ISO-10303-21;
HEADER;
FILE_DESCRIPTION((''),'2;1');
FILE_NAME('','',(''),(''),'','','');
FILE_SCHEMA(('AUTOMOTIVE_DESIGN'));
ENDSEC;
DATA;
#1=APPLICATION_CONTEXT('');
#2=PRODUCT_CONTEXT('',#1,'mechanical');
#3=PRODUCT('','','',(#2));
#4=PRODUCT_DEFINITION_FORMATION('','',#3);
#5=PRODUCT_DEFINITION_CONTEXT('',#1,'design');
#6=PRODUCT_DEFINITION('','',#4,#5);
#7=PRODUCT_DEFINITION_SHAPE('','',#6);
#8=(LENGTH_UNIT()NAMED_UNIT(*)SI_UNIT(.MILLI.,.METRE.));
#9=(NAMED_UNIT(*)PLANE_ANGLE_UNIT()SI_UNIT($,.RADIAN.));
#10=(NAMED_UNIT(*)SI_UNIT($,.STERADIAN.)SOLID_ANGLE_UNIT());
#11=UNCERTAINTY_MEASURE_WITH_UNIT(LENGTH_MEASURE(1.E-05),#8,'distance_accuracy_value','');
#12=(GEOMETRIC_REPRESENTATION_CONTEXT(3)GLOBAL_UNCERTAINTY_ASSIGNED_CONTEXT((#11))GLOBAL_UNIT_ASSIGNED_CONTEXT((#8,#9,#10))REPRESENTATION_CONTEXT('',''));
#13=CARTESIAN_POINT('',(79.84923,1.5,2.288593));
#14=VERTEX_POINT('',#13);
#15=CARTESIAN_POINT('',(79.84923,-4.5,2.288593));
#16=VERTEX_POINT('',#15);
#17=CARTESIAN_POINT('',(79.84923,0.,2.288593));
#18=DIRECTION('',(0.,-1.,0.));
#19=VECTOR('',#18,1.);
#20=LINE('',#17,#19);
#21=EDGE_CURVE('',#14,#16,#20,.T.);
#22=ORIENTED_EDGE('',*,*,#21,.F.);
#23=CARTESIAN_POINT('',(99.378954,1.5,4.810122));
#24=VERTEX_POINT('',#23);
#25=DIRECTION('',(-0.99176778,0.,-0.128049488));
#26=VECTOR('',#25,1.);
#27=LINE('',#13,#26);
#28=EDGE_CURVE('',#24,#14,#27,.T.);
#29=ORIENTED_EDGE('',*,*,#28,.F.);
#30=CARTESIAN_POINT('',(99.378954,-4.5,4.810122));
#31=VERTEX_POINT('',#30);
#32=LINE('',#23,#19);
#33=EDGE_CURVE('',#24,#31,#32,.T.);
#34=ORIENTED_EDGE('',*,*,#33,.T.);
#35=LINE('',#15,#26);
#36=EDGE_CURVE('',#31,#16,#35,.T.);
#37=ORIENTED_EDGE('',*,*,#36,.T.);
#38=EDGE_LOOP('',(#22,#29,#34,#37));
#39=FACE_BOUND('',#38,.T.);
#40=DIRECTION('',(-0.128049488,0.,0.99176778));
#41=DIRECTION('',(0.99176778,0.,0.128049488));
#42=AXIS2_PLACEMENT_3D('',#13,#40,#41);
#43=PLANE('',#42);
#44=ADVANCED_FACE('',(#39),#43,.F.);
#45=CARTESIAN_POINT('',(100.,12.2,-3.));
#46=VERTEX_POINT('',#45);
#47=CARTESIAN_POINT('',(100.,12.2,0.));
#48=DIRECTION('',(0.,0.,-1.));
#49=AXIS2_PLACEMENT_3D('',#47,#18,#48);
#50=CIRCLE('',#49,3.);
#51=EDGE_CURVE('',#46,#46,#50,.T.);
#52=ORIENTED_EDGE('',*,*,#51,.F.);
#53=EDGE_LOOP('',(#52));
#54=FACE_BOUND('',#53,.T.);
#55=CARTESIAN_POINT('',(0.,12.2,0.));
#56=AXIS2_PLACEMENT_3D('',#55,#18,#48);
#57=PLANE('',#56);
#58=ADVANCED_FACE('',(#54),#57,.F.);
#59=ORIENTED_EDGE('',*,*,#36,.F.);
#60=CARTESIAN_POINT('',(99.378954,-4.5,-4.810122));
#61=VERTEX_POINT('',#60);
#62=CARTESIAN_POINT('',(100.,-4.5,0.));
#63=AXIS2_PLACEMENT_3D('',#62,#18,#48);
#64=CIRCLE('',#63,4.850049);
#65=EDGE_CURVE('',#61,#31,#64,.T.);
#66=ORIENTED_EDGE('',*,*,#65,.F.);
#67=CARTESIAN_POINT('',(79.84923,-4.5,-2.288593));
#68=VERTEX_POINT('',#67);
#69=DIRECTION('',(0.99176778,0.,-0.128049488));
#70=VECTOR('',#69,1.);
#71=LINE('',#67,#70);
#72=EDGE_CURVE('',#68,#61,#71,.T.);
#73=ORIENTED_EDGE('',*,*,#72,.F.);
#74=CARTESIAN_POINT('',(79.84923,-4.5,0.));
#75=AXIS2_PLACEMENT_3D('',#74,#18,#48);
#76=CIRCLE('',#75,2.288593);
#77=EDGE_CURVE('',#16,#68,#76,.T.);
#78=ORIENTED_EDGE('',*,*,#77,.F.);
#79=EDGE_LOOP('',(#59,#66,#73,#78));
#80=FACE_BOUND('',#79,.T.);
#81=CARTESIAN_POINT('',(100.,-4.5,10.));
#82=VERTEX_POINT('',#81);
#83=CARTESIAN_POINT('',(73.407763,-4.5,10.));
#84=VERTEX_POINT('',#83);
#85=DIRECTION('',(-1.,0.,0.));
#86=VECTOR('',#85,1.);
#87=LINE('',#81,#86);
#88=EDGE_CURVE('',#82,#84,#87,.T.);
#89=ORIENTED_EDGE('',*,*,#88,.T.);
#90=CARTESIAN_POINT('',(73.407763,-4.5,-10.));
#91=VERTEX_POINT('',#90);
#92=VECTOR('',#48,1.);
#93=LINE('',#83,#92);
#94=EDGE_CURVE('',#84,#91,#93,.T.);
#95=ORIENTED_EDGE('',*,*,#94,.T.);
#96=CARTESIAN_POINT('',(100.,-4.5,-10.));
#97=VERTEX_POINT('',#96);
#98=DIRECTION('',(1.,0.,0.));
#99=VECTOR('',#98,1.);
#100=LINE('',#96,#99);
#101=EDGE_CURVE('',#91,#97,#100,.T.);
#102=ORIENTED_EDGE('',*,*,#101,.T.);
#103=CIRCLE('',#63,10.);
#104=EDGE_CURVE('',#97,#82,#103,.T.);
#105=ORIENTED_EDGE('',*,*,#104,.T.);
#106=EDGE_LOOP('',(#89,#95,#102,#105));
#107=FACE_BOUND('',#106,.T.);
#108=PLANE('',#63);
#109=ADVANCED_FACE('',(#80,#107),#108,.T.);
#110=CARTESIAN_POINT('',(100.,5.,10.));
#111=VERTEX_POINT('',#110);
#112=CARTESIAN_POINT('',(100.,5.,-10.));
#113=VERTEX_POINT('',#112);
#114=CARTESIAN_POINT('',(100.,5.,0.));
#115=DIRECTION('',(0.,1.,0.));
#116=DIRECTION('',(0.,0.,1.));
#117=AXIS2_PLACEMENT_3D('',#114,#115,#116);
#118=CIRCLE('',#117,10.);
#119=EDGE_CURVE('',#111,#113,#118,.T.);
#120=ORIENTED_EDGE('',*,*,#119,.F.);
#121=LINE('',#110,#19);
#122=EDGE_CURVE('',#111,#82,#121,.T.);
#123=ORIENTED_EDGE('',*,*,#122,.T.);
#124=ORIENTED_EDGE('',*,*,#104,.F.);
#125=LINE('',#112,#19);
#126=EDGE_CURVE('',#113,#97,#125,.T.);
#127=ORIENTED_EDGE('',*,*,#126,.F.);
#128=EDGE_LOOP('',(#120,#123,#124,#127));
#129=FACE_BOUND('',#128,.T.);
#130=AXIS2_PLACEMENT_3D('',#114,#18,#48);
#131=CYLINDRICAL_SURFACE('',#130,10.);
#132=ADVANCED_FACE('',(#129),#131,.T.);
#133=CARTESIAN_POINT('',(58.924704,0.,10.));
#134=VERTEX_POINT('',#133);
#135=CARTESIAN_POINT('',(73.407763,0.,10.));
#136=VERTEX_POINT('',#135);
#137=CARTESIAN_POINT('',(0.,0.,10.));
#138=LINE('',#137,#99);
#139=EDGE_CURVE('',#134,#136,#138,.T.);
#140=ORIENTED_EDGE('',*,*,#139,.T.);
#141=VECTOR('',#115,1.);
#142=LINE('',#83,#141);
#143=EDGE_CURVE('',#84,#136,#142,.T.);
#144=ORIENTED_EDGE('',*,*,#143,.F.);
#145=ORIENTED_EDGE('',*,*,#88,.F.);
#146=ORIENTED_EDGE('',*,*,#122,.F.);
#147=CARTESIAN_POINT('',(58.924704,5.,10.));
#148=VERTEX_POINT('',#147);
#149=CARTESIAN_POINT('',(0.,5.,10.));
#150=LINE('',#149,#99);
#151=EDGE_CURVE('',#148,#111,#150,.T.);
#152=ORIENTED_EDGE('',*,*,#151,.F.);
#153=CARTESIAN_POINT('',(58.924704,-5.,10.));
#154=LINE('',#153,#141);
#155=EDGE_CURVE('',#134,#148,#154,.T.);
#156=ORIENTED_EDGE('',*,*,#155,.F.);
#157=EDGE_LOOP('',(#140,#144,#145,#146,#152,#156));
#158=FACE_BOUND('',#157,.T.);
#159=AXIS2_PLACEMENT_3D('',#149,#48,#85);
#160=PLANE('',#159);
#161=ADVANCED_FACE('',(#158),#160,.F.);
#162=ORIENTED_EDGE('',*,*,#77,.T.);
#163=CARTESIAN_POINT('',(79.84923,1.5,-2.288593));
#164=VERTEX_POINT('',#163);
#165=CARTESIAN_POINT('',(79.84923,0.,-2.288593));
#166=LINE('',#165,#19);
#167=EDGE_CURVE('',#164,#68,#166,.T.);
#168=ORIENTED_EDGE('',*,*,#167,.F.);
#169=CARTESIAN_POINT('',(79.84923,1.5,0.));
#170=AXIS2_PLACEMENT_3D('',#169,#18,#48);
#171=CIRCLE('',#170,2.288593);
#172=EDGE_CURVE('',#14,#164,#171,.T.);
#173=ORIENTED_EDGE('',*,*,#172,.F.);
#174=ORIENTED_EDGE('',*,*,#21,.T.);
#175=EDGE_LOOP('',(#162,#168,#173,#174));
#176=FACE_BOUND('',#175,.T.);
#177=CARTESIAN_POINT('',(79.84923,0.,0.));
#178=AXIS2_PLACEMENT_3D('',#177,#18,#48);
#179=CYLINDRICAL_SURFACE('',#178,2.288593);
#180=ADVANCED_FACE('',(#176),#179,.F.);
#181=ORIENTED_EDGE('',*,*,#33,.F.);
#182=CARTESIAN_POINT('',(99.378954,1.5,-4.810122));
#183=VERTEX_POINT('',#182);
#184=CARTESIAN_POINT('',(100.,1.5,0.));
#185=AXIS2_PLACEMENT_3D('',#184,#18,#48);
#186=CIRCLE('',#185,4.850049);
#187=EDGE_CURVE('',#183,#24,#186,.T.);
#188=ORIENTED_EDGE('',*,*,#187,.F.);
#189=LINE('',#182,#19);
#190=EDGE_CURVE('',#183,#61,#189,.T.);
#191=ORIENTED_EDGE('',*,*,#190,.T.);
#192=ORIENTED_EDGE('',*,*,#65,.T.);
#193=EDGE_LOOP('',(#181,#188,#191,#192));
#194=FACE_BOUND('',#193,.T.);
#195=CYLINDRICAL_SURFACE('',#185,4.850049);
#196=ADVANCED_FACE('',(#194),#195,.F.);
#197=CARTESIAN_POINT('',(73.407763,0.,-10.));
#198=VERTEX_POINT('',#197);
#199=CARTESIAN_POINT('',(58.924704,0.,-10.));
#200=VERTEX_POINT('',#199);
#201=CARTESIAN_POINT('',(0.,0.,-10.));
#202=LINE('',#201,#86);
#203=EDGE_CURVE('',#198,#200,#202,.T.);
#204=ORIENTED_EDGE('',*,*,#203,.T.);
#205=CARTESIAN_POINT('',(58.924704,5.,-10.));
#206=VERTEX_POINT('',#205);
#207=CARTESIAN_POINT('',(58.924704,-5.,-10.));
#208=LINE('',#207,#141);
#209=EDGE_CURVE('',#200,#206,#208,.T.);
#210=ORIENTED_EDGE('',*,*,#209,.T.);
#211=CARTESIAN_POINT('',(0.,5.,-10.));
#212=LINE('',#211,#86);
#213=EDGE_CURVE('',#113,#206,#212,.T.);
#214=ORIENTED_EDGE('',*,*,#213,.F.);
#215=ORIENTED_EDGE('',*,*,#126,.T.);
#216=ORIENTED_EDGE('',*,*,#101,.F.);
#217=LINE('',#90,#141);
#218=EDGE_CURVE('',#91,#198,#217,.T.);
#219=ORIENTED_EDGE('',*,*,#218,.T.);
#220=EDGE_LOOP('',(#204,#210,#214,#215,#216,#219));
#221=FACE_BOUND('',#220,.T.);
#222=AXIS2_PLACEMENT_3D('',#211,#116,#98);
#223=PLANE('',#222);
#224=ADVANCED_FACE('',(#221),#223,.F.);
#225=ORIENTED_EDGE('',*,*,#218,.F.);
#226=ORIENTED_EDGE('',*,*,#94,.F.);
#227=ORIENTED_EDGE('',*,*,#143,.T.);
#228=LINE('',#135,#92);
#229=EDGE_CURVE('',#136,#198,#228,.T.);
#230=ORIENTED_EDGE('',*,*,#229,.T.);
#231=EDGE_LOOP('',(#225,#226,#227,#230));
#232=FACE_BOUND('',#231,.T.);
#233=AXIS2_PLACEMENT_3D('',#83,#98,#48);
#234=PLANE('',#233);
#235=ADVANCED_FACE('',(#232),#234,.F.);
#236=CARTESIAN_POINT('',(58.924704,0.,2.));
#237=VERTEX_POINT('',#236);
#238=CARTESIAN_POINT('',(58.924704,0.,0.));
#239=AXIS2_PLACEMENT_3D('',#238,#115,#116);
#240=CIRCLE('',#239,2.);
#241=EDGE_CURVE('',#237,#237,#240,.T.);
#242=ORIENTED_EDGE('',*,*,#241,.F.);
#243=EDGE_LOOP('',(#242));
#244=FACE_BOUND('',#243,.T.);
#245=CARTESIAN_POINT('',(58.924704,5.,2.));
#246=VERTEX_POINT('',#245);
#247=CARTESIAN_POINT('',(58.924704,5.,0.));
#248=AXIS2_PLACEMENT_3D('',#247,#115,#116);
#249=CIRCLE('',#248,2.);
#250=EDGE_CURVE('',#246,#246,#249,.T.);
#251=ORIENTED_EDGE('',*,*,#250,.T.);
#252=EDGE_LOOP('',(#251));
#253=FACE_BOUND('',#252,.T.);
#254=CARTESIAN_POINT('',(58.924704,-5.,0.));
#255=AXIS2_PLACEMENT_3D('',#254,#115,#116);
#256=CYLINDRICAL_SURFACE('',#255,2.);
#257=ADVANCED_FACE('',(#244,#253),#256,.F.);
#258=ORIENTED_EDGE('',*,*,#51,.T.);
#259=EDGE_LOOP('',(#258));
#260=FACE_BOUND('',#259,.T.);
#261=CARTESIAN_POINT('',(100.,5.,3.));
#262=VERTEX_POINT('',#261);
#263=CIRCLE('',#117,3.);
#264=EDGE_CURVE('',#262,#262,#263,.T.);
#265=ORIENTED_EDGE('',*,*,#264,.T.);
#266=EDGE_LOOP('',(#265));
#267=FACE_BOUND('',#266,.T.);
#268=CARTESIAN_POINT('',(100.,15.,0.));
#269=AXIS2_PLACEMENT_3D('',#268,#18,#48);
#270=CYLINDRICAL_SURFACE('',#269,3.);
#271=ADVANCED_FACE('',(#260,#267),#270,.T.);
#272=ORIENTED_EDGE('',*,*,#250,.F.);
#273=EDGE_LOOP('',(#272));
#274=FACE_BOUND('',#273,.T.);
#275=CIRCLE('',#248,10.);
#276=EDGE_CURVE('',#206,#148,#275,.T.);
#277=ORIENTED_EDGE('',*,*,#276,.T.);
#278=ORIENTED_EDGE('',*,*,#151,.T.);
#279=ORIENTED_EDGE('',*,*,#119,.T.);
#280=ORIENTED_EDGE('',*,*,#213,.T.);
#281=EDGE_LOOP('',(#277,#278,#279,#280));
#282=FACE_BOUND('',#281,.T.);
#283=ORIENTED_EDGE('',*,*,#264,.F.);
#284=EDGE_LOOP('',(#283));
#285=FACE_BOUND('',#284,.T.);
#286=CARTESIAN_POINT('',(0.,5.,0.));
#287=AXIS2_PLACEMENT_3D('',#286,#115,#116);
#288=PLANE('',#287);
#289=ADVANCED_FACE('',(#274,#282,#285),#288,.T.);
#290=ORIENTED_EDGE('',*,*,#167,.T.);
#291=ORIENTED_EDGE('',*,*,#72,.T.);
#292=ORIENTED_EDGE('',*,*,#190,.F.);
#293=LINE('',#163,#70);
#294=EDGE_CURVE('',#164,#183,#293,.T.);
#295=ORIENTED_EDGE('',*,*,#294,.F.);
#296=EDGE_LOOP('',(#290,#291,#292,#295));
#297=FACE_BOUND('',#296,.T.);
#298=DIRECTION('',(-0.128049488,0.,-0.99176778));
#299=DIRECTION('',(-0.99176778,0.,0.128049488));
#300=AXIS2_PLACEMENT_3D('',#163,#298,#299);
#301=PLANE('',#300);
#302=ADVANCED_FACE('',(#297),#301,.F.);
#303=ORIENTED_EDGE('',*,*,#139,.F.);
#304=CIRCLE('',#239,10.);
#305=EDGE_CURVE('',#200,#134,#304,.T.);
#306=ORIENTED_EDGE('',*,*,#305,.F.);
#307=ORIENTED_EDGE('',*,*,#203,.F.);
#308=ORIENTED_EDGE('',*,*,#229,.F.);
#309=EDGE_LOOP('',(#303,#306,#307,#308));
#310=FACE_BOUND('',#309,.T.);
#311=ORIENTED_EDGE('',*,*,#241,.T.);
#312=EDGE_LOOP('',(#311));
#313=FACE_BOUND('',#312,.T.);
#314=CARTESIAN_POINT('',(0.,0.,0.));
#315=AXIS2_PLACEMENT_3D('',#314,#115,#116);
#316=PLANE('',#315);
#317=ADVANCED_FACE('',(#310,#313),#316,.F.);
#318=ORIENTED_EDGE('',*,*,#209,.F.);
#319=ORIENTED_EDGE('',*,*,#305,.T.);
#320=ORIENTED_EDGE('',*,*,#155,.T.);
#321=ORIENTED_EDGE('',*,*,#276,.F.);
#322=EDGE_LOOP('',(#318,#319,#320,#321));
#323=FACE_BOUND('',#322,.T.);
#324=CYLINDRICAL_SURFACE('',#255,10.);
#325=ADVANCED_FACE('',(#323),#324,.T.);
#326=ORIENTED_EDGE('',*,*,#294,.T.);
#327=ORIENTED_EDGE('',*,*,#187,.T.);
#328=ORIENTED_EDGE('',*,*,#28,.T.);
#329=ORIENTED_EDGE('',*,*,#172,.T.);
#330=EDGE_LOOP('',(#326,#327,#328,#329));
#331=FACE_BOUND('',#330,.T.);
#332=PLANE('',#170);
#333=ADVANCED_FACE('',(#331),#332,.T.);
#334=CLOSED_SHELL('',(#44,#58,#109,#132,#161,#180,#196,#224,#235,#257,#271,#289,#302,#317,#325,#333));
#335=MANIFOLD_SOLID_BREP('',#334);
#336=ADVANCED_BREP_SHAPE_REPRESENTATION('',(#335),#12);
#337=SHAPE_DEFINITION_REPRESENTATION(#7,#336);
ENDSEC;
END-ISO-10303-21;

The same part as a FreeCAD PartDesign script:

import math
import FreeCAD as App
import Part
import Sketcher


def add_polygon(sketch, points):
    """Adds a closed chain of lines whose ends are joined by coincident constraints."""
    first, n = sketch.GeometryCount, len(points)
    for a, b in zip(points, points[1:] + points[:1]):
        sketch.addGeometry(Part.LineSegment(App.Vector(*a, 0), App.Vector(*b, 0)), False)
    for i in range(n):
        sketch.addConstraint(Sketcher.Constraint("Coincident", first + i, 2, first + (i + 1) % n, 1))

doc = App.newDocument("Part")
body = doc.addObject("PartDesign::Body", "Body")

# Sketch on XZ plane
sketch1 = body.newObject("Sketcher::SketchObject", "Sketch")
sketch1.AttachmentSupport = (doc.getObject("XZ_Plane"), [""])
sketch1.MapMode = "FlatFace"
sketch1.addGeometry(Part.LineSegment(App.Vector(100, -10, 0), App.Vector(0, -10, 0)), False)
sketch1.addGeometry(Part.ArcOfCircle(Part.Circle(App.Vector(0, 0, 0), App.Vector(0, 0, 1), 10), math.radians(90), math.radians(270)), False)
sketch1.addGeometry(Part.LineSegment(App.Vector(0, 10, 0), App.Vector(100, 10, 0)), False)
sketch1.addGeometry(Part.ArcOfCircle(Part.Circle(App.Vector(100, 0, 0), App.Vector(0, 0, 1), 10), math.radians(-90), math.radians(90)), False)
sketch1.addGeometry(Part.Circle(App.Vector(0, 0, 0), App.Vector(0, 0, 1), 2), False)
sketch1.addConstraint(Sketcher.Constraint("Tangent", 0, 2, 1, 2))
sketch1.addConstraint(Sketcher.Constraint("Tangent", 1, 1, 2, 1))
sketch1.addConstraint(Sketcher.Constraint("Tangent", 2, 2, 3, 2))
sketch1.addConstraint(Sketcher.Constraint("Tangent", 3, 1, 0, 1))
sketch1.addConstraint(Sketcher.Constraint("Horizontal", 0))
sketch1.addConstraint(Sketcher.Constraint("Horizontal", 2))
sketch1.addConstraint(Sketcher.Constraint("Coincident", 1, 3, -1, 1))
sketch1.addConstraint(Sketcher.Constraint("Coincident", 4, 3, -1, 1))
sketch1.addConstraint(Sketcher.Constraint("Diameter", 4, 4.0))
sketch1.addConstraint(Sketcher.Constraint("Radius", 1, 10.0))
sketch1.addConstraint(Sketcher.Constraint("DistanceX", 0, 2, 0, 1, 100.0))
pad1 = body.newObject("PartDesign::Pad", "Pad")
pad1.Profile = sketch1
pad1.Length = 5
pad1.Reversed = True

# Sketch on XZ plane
sketch2 = body.newObject("Sketcher::SketchObject", "Sketch001")
sketch2.AttachmentSupport = (doc.getObject("XZ_Plane"), [""])
sketch2.MapMode = "FlatFace"
sketch2.AttachmentOffset = App.Placement(App.Vector(0, 0, -5), App.Rotation())
sketch2.addGeometry(Part.Circle(App.Vector(100, 0, 0), App.Vector(0, 0, 1), 3), False)
sketch2.addConstraint(Sketcher.Constraint("PointOnObject", 0, 3, -1))
sketch2.addConstraint(Sketcher.Constraint("Diameter", 0, 6.0))
sketch2.addConstraint(Sketcher.Constraint("DistanceX", -1, 1, 0, 3, 100.0))
pad2 = body.newObject("PartDesign::Pad", "Pad001")
pad2.Profile = sketch2
pad2.Length = 10
pad2.Reversed = True

# Sketch on XZ plane
sketch3 = body.newObject("Sketcher::SketchObject", "Sketch002")
sketch3.AttachmentSupport = (doc.getObject("XZ_Plane"), [""])
sketch3.MapMode = "FlatFace"
sketch3.AttachmentOffset = App.Placement(App.Vector(0, 0, 4.5), App.Rotation())
sketch3.addGeometry(Part.LineSegment(App.Vector(100, 10, 0), App.Vector(73.407763, 10, 0)), False)
sketch3.addGeometry(Part.LineSegment(App.Vector(73.407763, 10, 0), App.Vector(73.407763, -10, 0)), False)
sketch3.addGeometry(Part.LineSegment(App.Vector(73.407763, -10, 0), App.Vector(100, -10, 0)), False)
sketch3.addGeometry(Part.ArcOfCircle(Part.Circle(App.Vector(100, 0, 0), App.Vector(0, 0, 1), 10), math.radians(-90), math.radians(90)), False)
sketch3.addConstraint(Sketcher.Constraint("Coincident", 0, 2, 1, 1))
sketch3.addConstraint(Sketcher.Constraint("Coincident", 1, 2, 2, 1))
sketch3.addConstraint(Sketcher.Constraint("Tangent", 2, 2, 3, 1))
sketch3.addConstraint(Sketcher.Constraint("Tangent", 3, 2, 0, 1))
sketch3.addConstraint(Sketcher.Constraint("Horizontal", 0))
sketch3.addConstraint(Sketcher.Constraint("Vertical", 1))
sketch3.addConstraint(Sketcher.Constraint("Horizontal", 2))
sketch3.addConstraint(Sketcher.Constraint("PointOnObject", 3, 3, -1))
sketch3.addConstraint(Sketcher.Constraint("Radius", 3, 10.0))
sketch3.addConstraint(Sketcher.Constraint("DistanceX", -1, 1, 3, 3, 100.0))
sketch3.addConstraint(Sketcher.Constraint("DistanceX", 0, 2, 0, 1, 26.592237))
pad3 = body.newObject("PartDesign::Pad", "Pad002")
pad3.Profile = sketch3
pad3.Length = 4.5
pad3.Reversed = True

# Sketch on XZ plane
sketch4 = body.newObject("Sketcher::SketchObject", "Sketch003")
sketch4.AttachmentSupport = (doc.getObject("XZ_Plane"), [""])
sketch4.MapMode = "FlatFace"
sketch4.AttachmentOffset = App.Placement(App.Vector(0, 0, 4.5), App.Rotation())
sketch4.addGeometry(Part.LineSegment(App.Vector(99.690179, 3.236181, 0), App.Vector(79.84923, 2.288593, 0)), False)
sketch4.addGeometry(Part.ArcOfCircle(Part.Circle(App.Vector(79.84923, 0, 0), App.Vector(0, 0, 1), 2.288593), math.radians(90), math.radians(270)), False)
sketch4.addGeometry(Part.LineSegment(App.Vector(79.84923, -2.288593, 0), App.Vector(99.690179, -3.236181, 0)), False)
sketch4.addGeometry(Part.ArcOfCircle(Part.Circle(App.Vector(100, 0, 0), App.Vector(0, 0, 1), 3.250978), math.radians(-95.468646), math.radians(95.468646)), False)
sketch4.addConstraint(Sketcher.Constraint("Coincident", 0, 2, 1, 1))
sketch4.addConstraint(Sketcher.Constraint("Coincident", 1, 2, 2, 1))
sketch4.addConstraint(Sketcher.Constraint("Coincident", 2, 2, 3, 1))
sketch4.addConstraint(Sketcher.Constraint("Coincident", 3, 2, 0, 1))
sketch4.addConstraint(Sketcher.Constraint("Symmetric", 0, 2, 1, 2, -1))
sketch4.addConstraint(Sketcher.Constraint("Symmetric", 2, 2, 3, 2, -1))
sketch4.addConstraint(Sketcher.Constraint("Vertical", 1, 3, 0, 2))
sketch4.addConstraint(Sketcher.Constraint("DistanceX", -1, 1, 3, 3, 100.0))
sketch4.addConstraint(Sketcher.Constraint("Radius", 1, 2.288593))
sketch4.addConstraint(Sketcher.Constraint("Radius", 3, 3.250978))
sketch4.addConstraint(Sketcher.Constraint("DistanceX", -1, 1, 1, 3, 79.84923))
sketch4.addConstraint(Sketcher.Constraint("DistanceX", -1, 1, 2, 2, 99.690179))
pocket1 = body.newObject("PartDesign::Pocket", "Pocket")
pocket1.Profile = sketch4
pocket1.Length = 4.5

# Sketch on XZ plane
sketch5 = body.newObject("Sketcher::SketchObject", "Sketch004")
sketch5.AttachmentSupport = (doc.getObject("XZ_Plane"), [""])
sketch5.MapMode = "FlatFace"
sketch5.AttachmentOffset = App.Placement(App.Vector(0, 0, 5), App.Rotation())
sketch5.addGeometry(Part.ArcOfCircle(Part.Circle(App.Vector(58.924704, 0, 0), App.Vector(0, 0, 1), 10), math.radians(90), math.radians(270)), False)
sketch5.addGeometry(Part.LineSegment(App.Vector(58.924704, -10, 0), App.Vector(0, -10, 0)), False)
sketch5.addGeometry(Part.ArcOfCircle(Part.Circle(App.Vector(0, 0, 0), App.Vector(0, 0, 1), 10), math.radians(90), math.radians(270)), False)
sketch5.addGeometry(Part.LineSegment(App.Vector(0, 10, 0), App.Vector(58.924704, 10, 0)), False)
sketch5.addGeometry(Part.Circle(App.Vector(0, 0, 0), App.Vector(0, 0, 1), 2), False)
sketch5.addConstraint(Sketcher.Constraint("Tangent", 0, 2, 1, 1))
sketch5.addConstraint(Sketcher.Constraint("Tangent", 1, 2, 2, 2))
sketch5.addConstraint(Sketcher.Constraint("Tangent", 2, 1, 3, 1))
sketch5.addConstraint(Sketcher.Constraint("Tangent", 3, 2, 0, 1))
sketch5.addConstraint(Sketcher.Constraint("Horizontal", 1))
sketch5.addConstraint(Sketcher.Constraint("Horizontal", 3))
sketch5.addConstraint(Sketcher.Constraint("Coincident", 2, 3, -1, 1))
sketch5.addConstraint(Sketcher.Constraint("Coincident", 4, 3, -1, 1))
sketch5.addConstraint(Sketcher.Constraint("Diameter", 4, 4.0))
sketch5.addConstraint(Sketcher.Constraint("Radius", 0, 10.0))
sketch5.addConstraint(Sketcher.Constraint("DistanceX", 1, 2, 1, 1, 58.924704))
pocket2 = body.newObject("PartDesign::Pocket", "Pocket001")
pocket2.Profile = sketch5
pocket2.Length = 10

# Sketch on XZ plane
sketch6 = body.newObject("Sketcher::SketchObject", "Sketch005")
sketch6.AttachmentSupport = (doc.getObject("XZ_Plane"), [""])
sketch6.MapMode = "FlatFace"
sketch6.AttachmentOffset = App.Placement(App.Vector(0, 0, -5), App.Rotation())
sketch6.addGeometry(Part.Circle(App.Vector(58.924704, 0, 0), App.Vector(0, 0, 1), 2), False)
sketch6.addConstraint(Sketcher.Constraint("PointOnObject", 0, 3, -1))
sketch6.addConstraint(Sketcher.Constraint("Diameter", 0, 4.0))
sketch6.addConstraint(Sketcher.Constraint("DistanceX", -1, 1, 0, 3, 58.924704))
pocket3 = body.newObject("PartDesign::Pocket", "Pocket002")
pocket3.Profile = sketch6
pocket3.Length = 10
pocket3.Reversed = True

# Sketch on XZ plane
sketch7 = body.newObject("Sketcher::SketchObject", "Sketch006")
sketch7.AttachmentSupport = (doc.getObject("XZ_Plane"), [""])
sketch7.MapMode = "FlatFace"
sketch7.AttachmentOffset = App.Placement(App.Vector(0, 0, 4.5), App.Rotation())
sketch7.addGeometry(Part.LineSegment(App.Vector(99.378954, 4.810122, 0), App.Vector(79.84923, 2.288593, 0)), False)
sketch7.addGeometry(Part.ArcOfCircle(Part.Circle(App.Vector(79.84923, 0, 0), App.Vector(0, 0, 1), 2.288593), math.radians(90), math.radians(270)), False)
sketch7.addGeometry(Part.LineSegment(App.Vector(79.84923, -2.288593, 0), App.Vector(99.378954, -4.810122, 0)), False)
sketch7.addGeometry(Part.ArcOfCircle(Part.Circle(App.Vector(100, 0, 0), App.Vector(0, 0, 1), 4.850049), math.radians(-97.356894), math.radians(97.356894)), False)
sketch7.addConstraint(Sketcher.Constraint("Coincident", 0, 2, 1, 1))
sketch7.addConstraint(Sketcher.Constraint("Coincident", 1, 2, 2, 1))
sketch7.addConstraint(Sketcher.Constraint("Tangent", 2, 2, 3, 1))
sketch7.addConstraint(Sketcher.Constraint("Tangent", 3, 2, 0, 1))
sketch7.addConstraint(Sketcher.Constraint("Symmetric", 0, 2, 1, 2, -1))
sketch7.addConstraint(Sketcher.Constraint("PointOnObject", 3, 3, -1))
sketch7.addConstraint(Sketcher.Constraint("Vertical", 1, 3, 0, 2))
sketch7.addConstraint(Sketcher.Constraint("DistanceX", -1, 1, 3, 3, 100.0))
sketch7.addConstraint(Sketcher.Constraint("Radius", 3, 4.850049))
sketch7.addConstraint(Sketcher.Constraint("Radius", 1, 2.288593))
sketch7.addConstraint(Sketcher.Constraint("Distance", 0, 19.691831))
pocket4 = body.newObject("PartDesign::Pocket", "Pocket003")
pocket4.Profile = sketch7
pocket4.Length = 6

# Sketch on XZ plane
sketch8 = body.newObject("Sketcher::SketchObject", "Sketch007")
sketch8.AttachmentSupport = (doc.getObject("XZ_Plane"), [""])
sketch8.MapMode = "FlatFace"
sketch8.AttachmentOffset = App.Placement(App.Vector(0, 0, -15), App.Rotation())
add_polygon(sketch8, [(82.101207, -7.671887), (82.101207, 23.691721), (105.24058, 23.691721), (105.24058, -7.671887)])  # lines 0-3
sketch8.addConstraint(Sketcher.Constraint("Vertical", 0))
sketch8.addConstraint(Sketcher.Constraint("Horizontal", 1))
sketch8.addConstraint(Sketcher.Constraint("Vertical", 2))
sketch8.addConstraint(Sketcher.Constraint("Horizontal", 3))
sketch8.addConstraint(Sketcher.Constraint("DistanceX", 1, 1, 1, 2, 23.139373))
sketch8.addConstraint(Sketcher.Constraint("DistanceY", 0, 1, 0, 2, 31.363608))
sketch8.addConstraint(Sketcher.Constraint("DistanceY", -1, 1, 0, 2, 23.691721))
sketch8.addConstraint(Sketcher.Constraint("DistanceX", -1, 1, 1, 2, 105.24058))
pocket5 = body.newObject("PartDesign::Pocket", "Pocket004")
pocket5.Profile = sketch8
pocket5.Length = 2.8
pocket5.Reversed = True

doc.recompute()
